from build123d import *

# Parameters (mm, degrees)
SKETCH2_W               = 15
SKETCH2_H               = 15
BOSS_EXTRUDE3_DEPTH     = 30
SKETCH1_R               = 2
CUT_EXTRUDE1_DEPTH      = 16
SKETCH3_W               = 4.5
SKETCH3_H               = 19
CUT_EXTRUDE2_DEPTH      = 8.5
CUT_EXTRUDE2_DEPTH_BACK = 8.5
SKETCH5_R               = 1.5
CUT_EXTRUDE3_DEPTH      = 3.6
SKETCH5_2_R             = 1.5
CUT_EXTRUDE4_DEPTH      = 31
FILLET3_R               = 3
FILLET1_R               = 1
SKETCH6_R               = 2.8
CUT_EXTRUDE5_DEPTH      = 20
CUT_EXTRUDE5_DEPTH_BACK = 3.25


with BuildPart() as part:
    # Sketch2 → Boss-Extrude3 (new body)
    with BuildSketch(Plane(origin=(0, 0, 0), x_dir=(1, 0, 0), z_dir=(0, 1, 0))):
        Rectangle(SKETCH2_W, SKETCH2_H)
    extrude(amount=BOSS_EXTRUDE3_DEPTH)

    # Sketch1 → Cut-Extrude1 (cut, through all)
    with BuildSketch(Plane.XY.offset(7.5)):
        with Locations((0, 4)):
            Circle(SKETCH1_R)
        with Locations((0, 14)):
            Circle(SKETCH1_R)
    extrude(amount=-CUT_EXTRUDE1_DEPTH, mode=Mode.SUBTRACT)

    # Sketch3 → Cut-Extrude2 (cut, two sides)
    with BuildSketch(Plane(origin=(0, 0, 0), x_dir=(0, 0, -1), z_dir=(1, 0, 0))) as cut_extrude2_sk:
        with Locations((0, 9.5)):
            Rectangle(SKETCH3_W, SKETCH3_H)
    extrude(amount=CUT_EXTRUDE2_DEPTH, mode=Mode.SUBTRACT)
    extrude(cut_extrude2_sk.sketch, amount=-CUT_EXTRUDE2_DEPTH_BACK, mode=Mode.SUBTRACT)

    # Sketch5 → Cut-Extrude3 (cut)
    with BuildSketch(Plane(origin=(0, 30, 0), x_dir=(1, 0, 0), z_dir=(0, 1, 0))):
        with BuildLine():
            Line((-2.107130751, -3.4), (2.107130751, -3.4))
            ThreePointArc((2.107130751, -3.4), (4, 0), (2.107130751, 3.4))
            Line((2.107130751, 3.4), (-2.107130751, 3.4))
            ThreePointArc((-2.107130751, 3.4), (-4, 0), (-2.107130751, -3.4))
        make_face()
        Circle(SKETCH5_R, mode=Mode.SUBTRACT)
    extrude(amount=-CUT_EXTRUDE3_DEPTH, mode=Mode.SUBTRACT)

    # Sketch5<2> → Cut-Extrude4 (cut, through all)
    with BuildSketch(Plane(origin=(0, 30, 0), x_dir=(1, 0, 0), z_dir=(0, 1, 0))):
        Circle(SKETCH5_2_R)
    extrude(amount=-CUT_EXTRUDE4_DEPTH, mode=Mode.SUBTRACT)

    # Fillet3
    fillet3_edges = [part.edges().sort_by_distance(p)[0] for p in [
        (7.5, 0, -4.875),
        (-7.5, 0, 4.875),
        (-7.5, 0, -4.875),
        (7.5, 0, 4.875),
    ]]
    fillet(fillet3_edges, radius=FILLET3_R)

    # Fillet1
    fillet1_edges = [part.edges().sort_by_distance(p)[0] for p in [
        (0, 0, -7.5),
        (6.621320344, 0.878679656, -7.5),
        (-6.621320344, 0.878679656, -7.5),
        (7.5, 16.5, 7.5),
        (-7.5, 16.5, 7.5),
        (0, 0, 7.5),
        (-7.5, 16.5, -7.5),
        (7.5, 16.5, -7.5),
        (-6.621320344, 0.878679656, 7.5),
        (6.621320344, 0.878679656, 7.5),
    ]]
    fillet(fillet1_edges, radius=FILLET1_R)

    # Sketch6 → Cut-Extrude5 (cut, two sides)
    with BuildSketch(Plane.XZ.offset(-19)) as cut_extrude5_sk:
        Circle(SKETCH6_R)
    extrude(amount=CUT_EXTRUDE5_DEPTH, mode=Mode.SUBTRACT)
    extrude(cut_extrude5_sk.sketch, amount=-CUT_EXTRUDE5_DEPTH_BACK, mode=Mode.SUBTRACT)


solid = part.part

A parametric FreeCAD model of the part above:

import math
import FreeCAD as App
import Part
import Sketcher

V = App.Vector
Q = App.Units.Quantity


def edges_at(feature, points):
    """Names of the edges that pass closest to the given points."""
    edges = feature.Shape.Edges
    near = lambda p: min(range(len(edges)), key=lambda i: edges[i].distToShape(Part.Vertex(*p))[0])
    return sorted({f"Edge{near(p) + 1}" for p in points})

doc = App.newDocument("Part")
body = doc.addObject("PartDesign::Body", "Body")

sketch1 = doc.addObject("Sketcher::SketchObject", "Sketch")
body.addObject(sketch1)
sketch1.AttachmentSupport = (doc.XZ_Plane, [""])
sketch1.MapMode = "FlatFace"
sketch1.addGeometry([
    Part.LineSegment(V(-7.5, -7.5, 0), V(-7.5, 7.5, 0)),
    Part.LineSegment(V(-7.5, 7.5, 0), V(7.5, 7.5, 0)),
    Part.LineSegment(V(7.5, 7.5, 0), V(7.5, -7.5, 0)),
    Part.LineSegment(V(7.5, -7.5, 0), V(-7.5, -7.5, 0)),
], False)
sketch1.addConstraint([
    Sketcher.Constraint("Coincident", 0, 2, 1, 1),
    Sketcher.Constraint("Coincident", 1, 2, 2, 1),
    Sketcher.Constraint("Coincident", 2, 2, 3, 1),
    Sketcher.Constraint("Coincident", 3, 2, 0, 1),
    Sketcher.Constraint("Vertical", 0),
    Sketcher.Constraint("Horizontal", 1),
    Sketcher.Constraint("Vertical", 2),
    Sketcher.Constraint("Horizontal", 3),
    Sketcher.Constraint("Symmetric", 0, 2, 2, 2, -1, 1),
    Sketcher.Constraint("Equal", 3, 0),
    Sketcher.Constraint("DistanceX", 1, 1, 1, 2, Q("15 mm")),
])
pad1 = doc.addObject("PartDesign::Pad", "Pad")
body.addObject(pad1)
pad1.Profile = sketch1
pad1.Length = 30
pad1.Reversed = True

sketch2 = doc.addObject("Sketcher::SketchObject", "Sketch001")
body.addObject(sketch2)
sketch2.AttachmentSupport = (doc.XY_Plane, [""])
sketch2.MapMode = "FlatFace"
sketch2.AttachmentOffset = App.Placement(V(0, 0, 7.5), App.Rotation())
sketch2.addGeometry([
    Part.Circle(V(0, 4, 0), V(0, 0, 1), 2),
    Part.Circle(V(0, 14, 0), V(0, 0, 1), 2),
], False)
sketch2.addConstraint([
    Sketcher.Constraint("Equal", 0, 1),
    Sketcher.Constraint("PointOnObject", 0, 3, -2),
    Sketcher.Constraint("PointOnObject", 1, 3, -2),
    Sketcher.Constraint("Diameter", 0, Q("4 mm")),
    Sketcher.Constraint("DistanceY", -1, 1, 0, 3, Q("4 mm")),
    Sketcher.Constraint("DistanceY", -1, 1, 1, 3, Q("14 mm")),
])
pocket1 = doc.addObject("PartDesign::Pocket", "Pocket")
body.addObject(pocket1)
pocket1.Profile = sketch2
pocket1.Type = "ThroughAll"

sketch3 = doc.addObject("Sketcher::SketchObject", "Sketch002")
body.addObject(sketch3)
sketch3.AttachmentSupport = (doc.YZ_Plane, [""])
sketch3.MapMode = "FlatFace"
sketch3.addGeometry([
    Part.LineSegment(V(19, 2.25, 0), V(0, 2.25, 0)),
    Part.LineSegment(V(0, 2.25, 0), V(0, -2.25, 0)),
    Part.LineSegment(V(0, -2.25, 0), V(19, -2.25, 0)),
    Part.LineSegment(V(19, -2.25, 0), V(19, 2.25, 0)),
], False)
sketch3.addConstraint([
    Sketcher.Constraint("Coincident", 0, 2, 1, 1),
    Sketcher.Constraint("Coincident", 1, 2, 2, 1),
    Sketcher.Constraint("Coincident", 2, 2, 3, 1),
    Sketcher.Constraint("Coincident", 3, 2, 0, 1),
    Sketcher.Constraint("Horizontal", 0),
    Sketcher.Constraint("Vertical", 1),
    Sketcher.Constraint("Horizontal", 2),
    Sketcher.Constraint("Vertical", 3),
    Sketcher.Constraint("Symmetric", 0, 2, 1, 2, -1, 1),
    Sketcher.Constraint("DistanceX", 0, 2, 0, 1, Q("19 mm")),
    Sketcher.Constraint("DistanceY", 1, 2, 1, 1, Q("4.5 mm")),
])
pocket2 = doc.addObject("PartDesign::Pocket", "Pocket001")
body.addObject(pocket2)
pocket2.Profile = sketch3
pocket2.Type = "ThroughAll"
pocket2.Midplane = True

sketch4 = doc.addObject("Sketcher::SketchObject", "Sketch003")
body.addObject(sketch4)
sketch4.AttachmentSupport = (doc.XZ_Plane, [""])
sketch4.MapMode = "FlatFace"
sketch4.AttachmentOffset = App.Placement(V(0, 0, -30), App.Rotation())
sketch4.addGeometry([
    Part.LineSegment(V(-2.107131, 3.4, 0), V(2.107131, 3.4, 0)),
    Part.ArcOfCircle(Part.Circle(V(0, 0, 0), V(0, 0, 1), 4), math.radians(-58.211669), math.radians(58.211669)),
    Part.LineSegment(V(2.107131, -3.4, 0), V(-2.107131, -3.4, 0)),
    Part.ArcOfCircle(Part.Circle(V(0, 0, 0), V(0, 0, 1), 4), math.radians(121.788331), math.radians(238.211669)),
    Part.Circle(V(0, 0, 0), V(0, 0, 1), 1.5),
], False)
sketch4.addConstraint([
    Sketcher.Constraint("Coincident", 0, 2, 1, 2),
    Sketcher.Constraint("Coincident", 1, 1, 2, 1),
    Sketcher.Constraint("Coincident", 2, 2, 3, 2),
    Sketcher.Constraint("Coincident", 3, 1, 0, 1),
    Sketcher.Constraint("Horizontal", 0),
    Sketcher.Constraint("Horizontal", 2),
    Sketcher.Constraint("Coincident", 1, 3, -1, 1),
    Sketcher.Constraint("Coincident", 3, 3, -1, 1),
    Sketcher.Constraint("Coincident", 4, 3, -1, 1),
    Sketcher.Constraint("Equal", 1, 3),
    Sketcher.Constraint("Vertical", 0, 2, 1, 1),
    Sketcher.Constraint("Diameter", 4, Q("3 mm")),
    Sketcher.Constraint("Radius", 1, Q("4 mm")),
    Sketcher.Constraint("DistanceY", -1, 1, 0, 2, Q("3.4 mm")),
])
pocket3 = doc.addObject("PartDesign::Pocket", "Pocket002")
body.addObject(pocket3)
pocket3.Profile = sketch4
pocket3.Length = 3.6
pocket3.Reversed = True

sketch5 = doc.addObject("Sketcher::SketchObject", "Sketch004")
body.addObject(sketch5)
sketch5.AttachmentSupport = (doc.XZ_Plane, [""])
sketch5.MapMode = "FlatFace"
sketch5.AttachmentOffset = App.Placement(V(0, 0, -30), App.Rotation())
sketch5.addGeometry(Part.Circle(V(0, 0, 0), V(0, 0, 1), 1.5), False)
sketch5.addConstraint([
    Sketcher.Constraint("Coincident", 0, 3, -1, 1),
    Sketcher.Constraint("Diameter", 0, Q("3 mm")),
])
pocket4 = doc.addObject("PartDesign::Pocket", "Pocket003")
body.addObject(pocket4)
pocket4.Profile = sketch5
pocket4.Type = "ThroughAll"
pocket4.Reversed = True
doc.recompute()

fillet = doc.addObject("PartDesign::Fillet", "Fillet")
body.addObject(fillet)
fillet.Base = (pocket4, edges_at(pocket4, [
    (7.5, 0, -4.875),
    (-7.5, 0, 4.875),
    (-7.5, 0, -4.875),
    (7.5, 0, 4.875),
]))
fillet.Radius = 3
doc.recompute()

fillet2 = doc.addObject("PartDesign::Fillet", "Fillet001")
body.addObject(fillet2)
fillet2.Base = (fillet, edges_at(fillet, [
    (0, 0, -7.5),
    (6.621, 0.879, -7.5),
    (-6.621, 0.879, -7.5),
    (7.5, 16.5, 7.5),
    (-7.5, 16.5, 7.5),
    (0, 0, 7.5),
    (-7.5, 16.5, -7.5),
    (7.5, 16.5, -7.5),
    (-6.621, 0.879, 7.5),
    (6.621, 0.879, 7.5),
]))
fillet2.Radius = 1

sketch6 = doc.addObject("Sketcher::SketchObject", "Sketch005")
body.addObject(sketch6)
sketch6.AttachmentSupport = (doc.XZ_Plane, [""])
sketch6.MapMode = "FlatFace"
sketch6.AttachmentOffset = App.Placement(V(0, 0, -19), App.Rotation())
sketch6.addGeometry(Part.Circle(V(0, 0, 0), V(0, 0, 1), 2.8), False)
sketch6.addConstraint([
    Sketcher.Constraint("Coincident", 0, 3, -1, 1),
    Sketcher.Constraint("Diameter", 0, Q("5.6 mm")),
])
pocket5 = doc.addObject("PartDesign::Pocket", "Pocket004")
body.addObject(pocket5)
pocket5.Profile = sketch6
pocket5.Type = "TwoLengths"
pocket5.Length = 20
pocket5.Length2 = 3.25
pocket5.Reversed = True

doc.recompute()
